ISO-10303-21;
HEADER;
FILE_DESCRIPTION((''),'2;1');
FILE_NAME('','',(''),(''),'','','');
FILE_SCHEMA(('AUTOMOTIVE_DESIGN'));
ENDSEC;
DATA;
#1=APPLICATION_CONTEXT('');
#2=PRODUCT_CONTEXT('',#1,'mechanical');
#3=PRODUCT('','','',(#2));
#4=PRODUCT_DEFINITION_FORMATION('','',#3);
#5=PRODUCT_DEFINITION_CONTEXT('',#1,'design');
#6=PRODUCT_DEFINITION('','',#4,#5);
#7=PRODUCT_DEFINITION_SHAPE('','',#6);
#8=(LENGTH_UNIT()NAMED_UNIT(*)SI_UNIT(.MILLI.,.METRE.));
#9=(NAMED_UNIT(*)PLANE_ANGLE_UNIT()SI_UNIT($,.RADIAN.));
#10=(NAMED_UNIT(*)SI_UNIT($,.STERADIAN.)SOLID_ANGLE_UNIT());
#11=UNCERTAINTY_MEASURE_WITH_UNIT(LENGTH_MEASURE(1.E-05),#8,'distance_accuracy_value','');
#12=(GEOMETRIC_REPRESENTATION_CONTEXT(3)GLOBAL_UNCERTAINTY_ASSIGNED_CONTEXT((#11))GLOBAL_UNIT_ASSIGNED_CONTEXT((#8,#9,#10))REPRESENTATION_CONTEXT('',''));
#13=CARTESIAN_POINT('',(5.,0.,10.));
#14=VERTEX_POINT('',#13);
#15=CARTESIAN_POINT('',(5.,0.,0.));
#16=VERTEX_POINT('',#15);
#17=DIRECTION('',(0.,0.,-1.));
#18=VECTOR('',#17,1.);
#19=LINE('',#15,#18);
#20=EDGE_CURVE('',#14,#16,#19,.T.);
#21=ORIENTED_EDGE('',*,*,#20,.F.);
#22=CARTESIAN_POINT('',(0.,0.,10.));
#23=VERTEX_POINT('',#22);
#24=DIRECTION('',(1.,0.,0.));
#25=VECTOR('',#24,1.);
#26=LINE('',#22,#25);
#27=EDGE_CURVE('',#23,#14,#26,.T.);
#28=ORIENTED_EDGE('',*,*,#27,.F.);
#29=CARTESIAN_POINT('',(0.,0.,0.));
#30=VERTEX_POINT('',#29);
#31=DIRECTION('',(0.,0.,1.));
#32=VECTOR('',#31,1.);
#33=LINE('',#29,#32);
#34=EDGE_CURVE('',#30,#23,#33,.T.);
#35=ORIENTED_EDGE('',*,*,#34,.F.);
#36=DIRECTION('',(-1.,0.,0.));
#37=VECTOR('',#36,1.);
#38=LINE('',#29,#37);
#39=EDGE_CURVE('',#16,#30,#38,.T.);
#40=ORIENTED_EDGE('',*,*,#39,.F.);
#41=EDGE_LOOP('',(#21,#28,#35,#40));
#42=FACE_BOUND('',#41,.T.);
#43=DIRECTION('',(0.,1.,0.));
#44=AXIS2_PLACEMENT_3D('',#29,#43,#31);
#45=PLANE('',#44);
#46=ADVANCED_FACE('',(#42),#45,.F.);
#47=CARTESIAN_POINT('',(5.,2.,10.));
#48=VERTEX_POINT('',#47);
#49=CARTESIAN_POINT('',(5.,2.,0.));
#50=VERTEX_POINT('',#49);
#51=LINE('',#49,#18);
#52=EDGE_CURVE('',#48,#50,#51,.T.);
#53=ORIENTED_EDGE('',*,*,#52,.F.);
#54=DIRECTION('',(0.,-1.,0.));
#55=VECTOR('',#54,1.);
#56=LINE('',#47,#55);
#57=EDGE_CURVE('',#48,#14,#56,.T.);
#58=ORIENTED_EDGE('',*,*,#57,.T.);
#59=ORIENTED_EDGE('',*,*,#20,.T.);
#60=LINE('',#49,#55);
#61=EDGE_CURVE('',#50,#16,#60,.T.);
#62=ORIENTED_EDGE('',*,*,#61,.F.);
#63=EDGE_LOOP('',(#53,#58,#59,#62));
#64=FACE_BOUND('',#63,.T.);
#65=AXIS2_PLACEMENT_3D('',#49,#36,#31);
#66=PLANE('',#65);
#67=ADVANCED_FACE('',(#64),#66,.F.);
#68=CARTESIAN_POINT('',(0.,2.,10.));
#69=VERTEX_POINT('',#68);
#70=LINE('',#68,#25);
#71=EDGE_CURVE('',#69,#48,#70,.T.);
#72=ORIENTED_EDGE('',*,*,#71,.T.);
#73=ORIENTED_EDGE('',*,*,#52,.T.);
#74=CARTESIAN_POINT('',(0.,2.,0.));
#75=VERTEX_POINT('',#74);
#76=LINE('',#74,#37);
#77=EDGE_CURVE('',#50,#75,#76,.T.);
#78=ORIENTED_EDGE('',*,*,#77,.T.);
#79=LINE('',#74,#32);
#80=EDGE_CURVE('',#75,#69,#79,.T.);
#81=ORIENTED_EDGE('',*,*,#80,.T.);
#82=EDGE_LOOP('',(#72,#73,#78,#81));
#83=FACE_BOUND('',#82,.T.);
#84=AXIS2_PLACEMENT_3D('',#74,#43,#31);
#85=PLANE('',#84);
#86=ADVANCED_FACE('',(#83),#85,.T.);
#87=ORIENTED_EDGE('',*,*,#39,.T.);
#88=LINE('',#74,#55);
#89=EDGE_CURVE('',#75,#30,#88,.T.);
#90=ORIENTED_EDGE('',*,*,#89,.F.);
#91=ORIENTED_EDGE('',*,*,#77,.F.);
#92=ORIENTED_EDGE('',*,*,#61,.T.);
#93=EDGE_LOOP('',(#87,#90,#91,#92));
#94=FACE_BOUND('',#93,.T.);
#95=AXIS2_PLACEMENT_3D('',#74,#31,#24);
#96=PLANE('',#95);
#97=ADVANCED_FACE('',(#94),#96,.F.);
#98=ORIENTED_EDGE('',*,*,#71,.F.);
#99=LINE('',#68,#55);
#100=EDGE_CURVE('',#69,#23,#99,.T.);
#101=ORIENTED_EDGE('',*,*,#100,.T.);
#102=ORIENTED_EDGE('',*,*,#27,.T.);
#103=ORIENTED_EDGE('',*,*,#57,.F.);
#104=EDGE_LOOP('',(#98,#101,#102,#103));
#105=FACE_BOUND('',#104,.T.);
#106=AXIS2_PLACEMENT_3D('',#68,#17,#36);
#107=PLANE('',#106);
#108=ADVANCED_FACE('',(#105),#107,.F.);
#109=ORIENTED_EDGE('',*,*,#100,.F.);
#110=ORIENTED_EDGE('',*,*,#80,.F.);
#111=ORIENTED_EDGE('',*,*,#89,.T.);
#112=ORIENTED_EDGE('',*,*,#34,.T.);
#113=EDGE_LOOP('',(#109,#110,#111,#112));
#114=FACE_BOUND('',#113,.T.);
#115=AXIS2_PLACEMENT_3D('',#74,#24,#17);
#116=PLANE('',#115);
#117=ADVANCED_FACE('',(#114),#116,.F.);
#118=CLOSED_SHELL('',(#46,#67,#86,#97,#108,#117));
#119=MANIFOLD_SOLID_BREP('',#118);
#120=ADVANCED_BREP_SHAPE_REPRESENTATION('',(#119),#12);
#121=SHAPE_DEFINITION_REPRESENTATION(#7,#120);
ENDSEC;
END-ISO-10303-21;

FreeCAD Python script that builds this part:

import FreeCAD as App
import Part
import Sketcher


def add_polygon(sketch, points):
    """Adds a closed chain of lines whose ends are joined by coincident constraints."""
    first, n = sketch.GeometryCount, len(points)
    for a, b in zip(points, points[1:] + points[:1]):
        sketch.addGeometry(Part.LineSegment(App.Vector(*a, 0), App.Vector(*b, 0)), False)
    for i in range(n):
        sketch.addConstraint(Sketcher.Constraint("Coincident", first + i, 2, first + (i + 1) % n, 1))

doc = App.newDocument("Part")
body = doc.addObject("PartDesign::Body", "Body")

sketch1 = body.newObject("Sketcher::SketchObject", "Sketch")
sketch1.AttachmentSupport = (doc.getObject("XZ_Plane"), [""])
sketch1.MapMode = "FlatFace"
add_polygon(sketch1, [(0, 0), (0, 10), (5, 10), (5, 0)])
sketch1.addConstraint([
    Sketcher.Constraint("Vertical", 0),
    Sketcher.Constraint("Horizontal", 1),
    Sketcher.Constraint("Vertical", 2),
    Sketcher.Constraint("Horizontal", 3),
    Sketcher.Constraint("Coincident", 3, 2, -1, 1),
    Sketcher.Constraint("DistanceX", 1, 1, 1, 2, 5.0),
    Sketcher.Constraint("DistanceY", 0, 1, 0, 2, 10.0),
])
pad1 = body.newObject("PartDesign::Pad", "Pad")
pad1.Profile = sketch1
pad1.Length = 2
pad1.Reversed = True

doc.recompute()
